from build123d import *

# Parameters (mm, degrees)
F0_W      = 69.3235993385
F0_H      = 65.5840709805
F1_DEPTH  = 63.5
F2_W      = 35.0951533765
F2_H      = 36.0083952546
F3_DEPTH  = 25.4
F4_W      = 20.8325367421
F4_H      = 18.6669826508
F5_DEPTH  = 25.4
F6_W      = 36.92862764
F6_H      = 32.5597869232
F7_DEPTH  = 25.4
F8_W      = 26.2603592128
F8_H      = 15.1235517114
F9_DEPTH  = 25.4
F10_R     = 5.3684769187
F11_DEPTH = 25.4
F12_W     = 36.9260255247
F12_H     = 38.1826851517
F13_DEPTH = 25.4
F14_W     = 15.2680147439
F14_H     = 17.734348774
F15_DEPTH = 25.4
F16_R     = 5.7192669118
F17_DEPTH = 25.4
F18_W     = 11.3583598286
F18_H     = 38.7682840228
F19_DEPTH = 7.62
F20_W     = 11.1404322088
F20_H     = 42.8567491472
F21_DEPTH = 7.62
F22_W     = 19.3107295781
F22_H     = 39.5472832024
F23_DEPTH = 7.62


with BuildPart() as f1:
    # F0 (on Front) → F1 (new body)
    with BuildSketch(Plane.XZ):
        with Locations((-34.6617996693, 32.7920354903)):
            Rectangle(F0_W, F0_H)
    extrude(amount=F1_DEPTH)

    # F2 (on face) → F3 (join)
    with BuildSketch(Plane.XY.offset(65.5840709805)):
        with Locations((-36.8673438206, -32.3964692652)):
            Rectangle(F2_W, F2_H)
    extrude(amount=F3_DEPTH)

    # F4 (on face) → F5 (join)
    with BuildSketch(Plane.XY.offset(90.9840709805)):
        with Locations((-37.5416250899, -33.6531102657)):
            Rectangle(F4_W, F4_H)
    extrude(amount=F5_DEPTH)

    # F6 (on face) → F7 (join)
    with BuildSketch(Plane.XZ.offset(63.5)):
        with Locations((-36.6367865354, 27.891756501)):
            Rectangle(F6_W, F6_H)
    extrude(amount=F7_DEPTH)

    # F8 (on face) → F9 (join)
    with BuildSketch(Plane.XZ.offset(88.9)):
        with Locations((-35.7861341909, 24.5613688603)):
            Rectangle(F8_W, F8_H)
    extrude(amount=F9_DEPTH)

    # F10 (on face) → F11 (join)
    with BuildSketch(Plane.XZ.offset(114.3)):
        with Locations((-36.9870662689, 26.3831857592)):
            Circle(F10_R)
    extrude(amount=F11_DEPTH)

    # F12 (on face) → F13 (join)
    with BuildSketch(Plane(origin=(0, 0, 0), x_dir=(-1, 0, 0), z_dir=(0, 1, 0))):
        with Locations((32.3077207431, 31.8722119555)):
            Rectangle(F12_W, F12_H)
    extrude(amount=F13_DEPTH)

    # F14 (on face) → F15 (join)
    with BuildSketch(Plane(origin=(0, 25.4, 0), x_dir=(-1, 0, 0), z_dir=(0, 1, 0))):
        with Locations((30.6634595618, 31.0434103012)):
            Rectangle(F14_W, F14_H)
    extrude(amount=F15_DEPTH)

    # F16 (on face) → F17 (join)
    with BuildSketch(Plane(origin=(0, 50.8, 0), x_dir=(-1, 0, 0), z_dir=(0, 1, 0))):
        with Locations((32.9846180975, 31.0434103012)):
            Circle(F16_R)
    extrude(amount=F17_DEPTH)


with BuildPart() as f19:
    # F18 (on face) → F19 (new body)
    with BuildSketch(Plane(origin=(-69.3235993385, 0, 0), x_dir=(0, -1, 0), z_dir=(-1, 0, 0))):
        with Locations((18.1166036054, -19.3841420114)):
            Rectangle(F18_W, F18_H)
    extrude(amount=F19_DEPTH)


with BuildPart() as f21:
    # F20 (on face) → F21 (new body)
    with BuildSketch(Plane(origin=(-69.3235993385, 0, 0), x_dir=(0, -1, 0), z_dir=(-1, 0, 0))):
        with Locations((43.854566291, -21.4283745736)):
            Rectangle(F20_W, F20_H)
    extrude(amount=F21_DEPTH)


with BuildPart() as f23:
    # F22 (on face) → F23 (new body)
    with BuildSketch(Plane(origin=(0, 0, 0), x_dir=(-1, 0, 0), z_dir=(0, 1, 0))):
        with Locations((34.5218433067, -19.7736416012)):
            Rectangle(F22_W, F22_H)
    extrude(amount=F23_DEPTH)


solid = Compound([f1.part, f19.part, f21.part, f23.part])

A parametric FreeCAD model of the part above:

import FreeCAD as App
import Part
import Sketcher
Q = App.Units.Quantity


def add_polygon(sketch, points):
    """Adds a closed chain of lines whose ends are joined by coincident constraints."""
    first, n = sketch.GeometryCount, len(points)
    for a, b in zip(points, points[1:] + points[:1]):
        sketch.addGeometry(Part.LineSegment(App.Vector(*a, 0), App.Vector(*b, 0)), False)
    for i in range(n):
        sketch.addConstraint(Sketcher.Constraint("Coincident", first + i, 2, first + (i + 1) % n, 1))

doc = App.newDocument("Part")
body = doc.addObject("PartDesign::Body", "Body")

sketch1 = doc.addObject("Sketcher::SketchObject", "Sketch")
body.addObject(sketch1)
sketch1.AttachmentSupport = (doc.XZ_Plane, [""])
sketch1.MapMode = "FlatFace"
add_polygon(sketch1, [(-69, 66), (-69, 0), (0, 0), (0, 66)])
sketch1.addConstraint(Sketcher.Constraint("Vertical", 0))
sketch1.addConstraint(Sketcher.Constraint("Horizontal", 1))
sketch1.addConstraint(Sketcher.Constraint("Vertical", 2))
sketch1.addConstraint(Sketcher.Constraint("Horizontal", 3))
sketch1.addConstraint(Sketcher.Constraint("Coincident", 1, 2, -1, 1))
sketch1.addConstraint(Sketcher.Constraint("DistanceX", 1, 1, 1, 2, Q("69.323599 mm")))
sketch1.addConstraint(Sketcher.Constraint("DistanceY", 0, 2, 0, 1, Q("65.584071 mm")))
pad1 = doc.addObject("PartDesign::Pad", "Pad")
body.addObject(pad1)
pad1.Profile = sketch1
pad1.Length = Q("2.5 in")

sketch2 = doc.addObject("Sketcher::SketchObject", "Sketch001")
body.addObject(sketch2)
sketch2.AttachmentSupport = (doc.XY_Plane, [""])
sketch2.MapMode = "FlatFace"
sketch2.AttachmentOffset = App.Placement(App.Vector(0, 0, 65.584071), App.Rotation())
add_polygon(sketch2, [(-54, -14), (-54, -50), (-19, -50), (-19, -14)])
sketch2.addConstraint(Sketcher.Constraint("Vertical", 0))
sketch2.addConstraint(Sketcher.Constraint("Horizontal", 1))
sketch2.addConstraint(Sketcher.Constraint("Vertical", 2))
sketch2.addConstraint(Sketcher.Constraint("Horizontal", 3))
sketch2.addConstraint(Sketcher.Constraint("DistanceX", 1, 1, 1, 2, Q("35.095153 mm")))
sketch2.addConstraint(Sketcher.Constraint("DistanceY", 0, 2, 0, 1, Q("36.008395 mm")))
sketch2.addConstraint(Sketcher.Constraint("DistanceX", 0, 2, -1, 1, Q("54.414921 mm")))
sketch2.addConstraint(Sketcher.Constraint("DistanceY", 2, 2, -1, 1, Q("14.392272 mm")))
pad2 = doc.addObject("PartDesign::Pad", "Pad001")
body.addObject(pad2)
pad2.Profile = sketch2
pad2.Length = Q("1 in")

sketch3 = doc.addObject("Sketcher::SketchObject", "Sketch002")
body.addObject(sketch3)
sketch3.AttachmentSupport = (doc.XY_Plane, [""])
sketch3.MapMode = "FlatFace"
sketch3.AttachmentOffset = App.Placement(App.Vector(0, 0, 90.984071), App.Rotation())
add_polygon(sketch3, [(-48, -24), (-48, -43), (-27, -43), (-27, -24)])
sketch3.addConstraint(Sketcher.Constraint("Vertical", 0))
sketch3.addConstraint(Sketcher.Constraint("Horizontal", 1))
sketch3.addConstraint(Sketcher.Constraint("Vertical", 2))
sketch3.addConstraint(Sketcher.Constraint("Horizontal", 3))
sketch3.addConstraint(Sketcher.Constraint("DistanceY", 0, 2, -1, 1, Q("42.986602 mm")))
sketch3.addConstraint(Sketcher.Constraint("DistanceX", 1, 1, 1, 2, Q("20.832537 mm")))
sketch3.addConstraint(Sketcher.Constraint("DistanceY", 0, 2, 0, 1, Q("18.666983 mm")))
sketch3.addConstraint(Sketcher.Constraint("DistanceX", 0, 2, -1, 1, Q("47.957893 mm")))
pad3 = doc.addObject("PartDesign::Pad", "Pad002")
body.addObject(pad3)
pad3.Profile = sketch3
pad3.Length = Q("1 in")

sketch4 = doc.addObject("Sketcher::SketchObject", "Sketch003")
body.addObject(sketch4)
sketch4.AttachmentSupport = (doc.XZ_Plane, [""])
sketch4.MapMode = "FlatFace"
sketch4.AttachmentOffset = App.Placement(App.Vector(0, 0, 2.5 * 25.4), App.Rotation())
add_polygon(sketch4, [(-55, 44), (-55, 12), (-18, 12), (-18, 44)])
sketch4.addConstraint(Sketcher.Constraint("Vertical", 0))
sketch4.addConstraint(Sketcher.Constraint("Horizontal", 1))
sketch4.addConstraint(Sketcher.Constraint("Vertical", 2))
sketch4.addConstraint(Sketcher.Constraint("Horizontal", 3))
sketch4.addConstraint(Sketcher.Constraint("DistanceX", 0, 2, -1, 1, Q("55.1011 mm")))
sketch4.addConstraint(Sketcher.Constraint("DistanceX", 1, 1, 1, 2, Q("36.928628 mm")))
sketch4.addConstraint(Sketcher.Constraint("DistanceY", 0, 2, 0, 1, Q("32.559787 mm")))
sketch4.addConstraint(Sketcher.Constraint("DistanceY", -1, 1, 2, 2, Q("44.17165 mm")))
pad4 = doc.addObject("PartDesign::Pad", "Pad003")
body.addObject(pad4)
pad4.Profile = sketch4
pad4.Length = Q("1 in")

sketch5 = doc.addObject("Sketcher::SketchObject", "Sketch004")
body.addObject(sketch5)
sketch5.AttachmentSupport = (doc.XZ_Plane, [""])
sketch5.MapMode = "FlatFace"
sketch5.AttachmentOffset = App.Placement(App.Vector(0, 0, 3.5 * 25.4), App.Rotation())
add_polygon(sketch5, [(-49, 32), (-49, 17), (-23, 17), (-23, 32)])
sketch5.addConstraint(Sketcher.Constraint("Vertical", 0))
sketch5.addConstraint(Sketcher.Constraint("Horizontal", 1))
sketch5.addConstraint(Sketcher.Constraint("Vertical", 2))
sketch5.addConstraint(Sketcher.Constraint("Horizontal", 3))
sketch5.addConstraint(Sketcher.Constraint("DistanceX", 1, 1, 1, 2, Q("26.260359 mm")))
sketch5.addConstraint(Sketcher.Constraint("DistanceY", 0, 2, 0, 1, Q("15.123552 mm")))
sketch5.addConstraint(Sketcher.Constraint("DistanceX", 0, 2, -1, 1, Q("48.916314 mm")))
sketch5.addConstraint(Sketcher.Constraint("DistanceY", -1, 1, 0, 2, Q("16.999593 mm")))
pad5 = doc.addObject("PartDesign::Pad", "Pad004")
body.addObject(pad5)
pad5.Profile = sketch5
pad5.Length = Q("1 in")

sketch6 = doc.addObject("Sketcher::SketchObject", "Sketch005")
body.addObject(sketch6)
sketch6.AttachmentSupport = (doc.XZ_Plane, [""])
sketch6.MapMode = "FlatFace"
sketch6.AttachmentOffset = App.Placement(App.Vector(0, 0, 4.5 * 25.4), App.Rotation())
sketch6.addGeometry(Part.Circle(App.Vector(-37, 26, 0), App.Vector(0, 0, 1), 5), False)
sketch6.addConstraint(Sketcher.Constraint("Diameter", 0, Q("10.736954 mm")))
sketch6.addConstraint(Sketcher.Constraint("DistanceX", 0, 3, -1, 1, Q("36.987066 mm")))
sketch6.addConstraint(Sketcher.Constraint("DistanceY", -1, 1, 0, 3, Q("26.383186 mm")))
pad6 = doc.addObject("PartDesign::Pad", "Pad005")
body.addObject(pad6)
pad6.Profile = sketch6
pad6.Length = Q("1 in")

sketch7 = doc.addObject("Sketcher::SketchObject", "Sketch006")
body.addObject(sketch7)
sketch7.AttachmentSupport = (doc.XZ_Plane, [""])
sketch7.MapMode = "FlatFace"
add_polygon(sketch7, [(-14, 51), (-14, 13), (-51, 13), (-51, 51)])
sketch7.addConstraint(Sketcher.Constraint("Vertical", 0))
sketch7.addConstraint(Sketcher.Constraint("Horizontal", 1))
sketch7.addConstraint(Sketcher.Constraint("Vertical", 2))
sketch7.addConstraint(Sketcher.Constraint("Horizontal", 3))
sketch7.addConstraint(Sketcher.Constraint("DistanceX", 1, 2, 1, 1, Q("36.926026 mm")))
sketch7.addConstraint(Sketcher.Constraint("DistanceY", 0, 2, 0, 1, Q("38.182685 mm")))
sketch7.addConstraint(Sketcher.Constraint("DistanceY", -1, 1, 0, 2, Q("12.780869 mm")))
sketch7.addConstraint(Sketcher.Constraint("DistanceX", 0, 2, -1, 1, Q("13.844708 mm")))
pad7 = doc.addObject("PartDesign::Pad", "Pad006")
body.addObject(pad7)
pad7.Profile = sketch7
pad7.Length = Q("1 in")
pad7.Reversed = True

sketch8 = doc.addObject("Sketcher::SketchObject", "Sketch007")
body.addObject(sketch8)
sketch8.AttachmentSupport = (doc.XZ_Plane, [""])
sketch8.MapMode = "FlatFace"
sketch8.AttachmentOffset = App.Placement(App.Vector(0, 0, -1 * 25.4), App.Rotation())
add_polygon(sketch8, [(-23, 40), (-23, 22), (-38, 22), (-38, 40)])
sketch8.addConstraint(Sketcher.Constraint("Vertical", 0))
sketch8.addConstraint(Sketcher.Constraint("Horizontal", 1))
sketch8.addConstraint(Sketcher.Constraint("Vertical", 2))
sketch8.addConstraint(Sketcher.Constraint("Horizontal", 3))
sketch8.addConstraint(Sketcher.Constraint("DistanceY", 0, 2, 0, 1, Q("17.734349 mm")))
sketch8.addConstraint(Sketcher.Constraint("DistanceX", 1, 2, 1, 1, Q("15.268015 mm")))
sketch8.addConstraint(Sketcher.Constraint("DistanceX", 0, 2, -1, 1, Q("23.029452 mm")))
sketch8.addConstraint(Sketcher.Constraint("DistanceY", -1, 1, 0, 2, Q("22.176236 mm")))
pad8 = doc.addObject("PartDesign::Pad", "Pad007")
body.addObject(pad8)
pad8.Profile = sketch8
pad8.Length = Q("1 in")
pad8.Reversed = True

sketch9 = doc.addObject("Sketcher::SketchObject", "Sketch008")
body.addObject(sketch9)
sketch9.AttachmentSupport = (doc.XZ_Plane, [""])
sketch9.MapMode = "FlatFace"
sketch9.AttachmentOffset = App.Placement(App.Vector(0, 0, -2 * 25.4), App.Rotation())
sketch9.addGeometry(Part.Circle(App.Vector(-33, 31, 0), App.Vector(0, 0, 1), 6), False)
sketch9.addConstraint(Sketcher.Constraint("Diameter", 0, Q("11.438534 mm")))
sketch9.addConstraint(Sketcher.Constraint("DistanceX", 0, 3, -1, 1, Q("32.984618 mm")))
sketch9.addConstraint(Sketcher.Constraint("DistanceY", -1, 1, 0, 3, Q("31.04341 mm")))
pad9 = doc.addObject("PartDesign::Pad", "Pad008")
body.addObject(pad9)
pad9.Profile = sketch9
pad9.Length = Q("1 in")
pad9.Reversed = True
body2 = doc.addObject("PartDesign::Body", "Body001")

sketch10 = doc.addObject("Sketcher::SketchObject", "Sketch009")
body2.addObject(sketch10)
sketch10.AttachmentSupport = (doc.getObject("YZ_Plane001"), [""])
sketch10.MapMode = "FlatFace"
sketch10.AttachmentOffset = App.Placement(App.Vector(0, 0, -69.323599), App.Rotation())
add_polygon(sketch10, [(-12, 0), (-12, -39), (-24, -39), (-24, 0)])
sketch10.addConstraint(Sketcher.Constraint("Vertical", 0))
sketch10.addConstraint(Sketcher.Constraint("Horizontal", 1))
sketch10.addConstraint(Sketcher.Constraint("Vertical", 2))
sketch10.addConstraint(Sketcher.Constraint("Horizontal", 3))
sketch10.addConstraint(Sketcher.Constraint("PointOnObject", 2, 2, -1))
sketch10.addConstraint(Sketcher.Constraint("DistanceX", 1, 2, 1, 1, Q("11.35836 mm")))
sketch10.addConstraint(Sketcher.Constraint("DistanceY", 0, 2, 0, 1, Q("38.768284 mm")))
sketch10.addConstraint(Sketcher.Constraint("DistanceX", 0, 2, -1, 1, Q("12.437424 mm")))
pad10 = doc.addObject("PartDesign::Pad", "Pad009")
body2.addObject(pad10)
pad10.Profile = sketch10
pad10.Length = Q("0.3 in")
pad10.Reversed = True
body3 = doc.addObject("PartDesign::Body", "Body002")

sketch11 = doc.addObject("Sketcher::SketchObject", "Sketch010")
body3.addObject(sketch11)
sketch11.AttachmentSupport = (doc.getObject("YZ_Plane002"), [""])
sketch11.MapMode = "FlatFace"
sketch11.AttachmentOffset = App.Placement(App.Vector(0, 0, -69.323599), App.Rotation())
add_polygon(sketch11, [(-38, 0), (-38, -43), (-49, -43), (-49, 0)])
sketch11.addConstraint(Sketcher.Constraint("Vertical", 0))
sketch11.addConstraint(Sketcher.Constraint("Horizontal", 1))
sketch11.addConstraint(Sketcher.Constraint("Vertical", 2))
sketch11.addConstraint(Sketcher.Constraint("Horizontal", 3))
sketch11.addConstraint(Sketcher.Constraint("PointOnObject", 2, 2, -1))
sketch11.addConstraint(Sketcher.Constraint("DistanceY", 0, 2, 0, 1, Q("42.856749 mm")))
sketch11.addConstraint(Sketcher.Constraint("DistanceX", 1, 2, 1, 1, Q("11.140432 mm")))
sketch11.addConstraint(Sketcher.Constraint("DistanceX", 0, 2, -1, 1, Q("38.28435 mm")))
pad11 = doc.addObject("PartDesign::Pad", "Pad010")
body3.addObject(pad11)
pad11.Profile = sketch11
pad11.Length = Q("0.3 in")
pad11.Reversed = True
body4 = doc.addObject("PartDesign::Body", "Body003")

sketch12 = doc.addObject("Sketcher::SketchObject", "Sketch011")
body4.addObject(sketch12)
sketch12.AttachmentSupport = (doc.getObject("XZ_Plane003"), [""])
sketch12.MapMode = "FlatFace"
add_polygon(sketch12, [(-25, 0), (-25, -40), (-44, -40), (-44, 0)])
sketch12.addConstraint(Sketcher.Constraint("Vertical", 0))
sketch12.addConstraint(Sketcher.Constraint("Horizontal", 1))
sketch12.addConstraint(Sketcher.Constraint("Vertical", 2))
sketch12.addConstraint(Sketcher.Constraint("Horizontal", 3))
sketch12.addConstraint(Sketcher.Constraint("PointOnObject", 2, 2, -1))
sketch12.addConstraint(Sketcher.Constraint("DistanceX", 1, 2, 1, 1, Q("19.31073 mm")))
sketch12.addConstraint(Sketcher.Constraint("DistanceY", 0, 2, 0, 1, Q("39.547283 mm")))
sketch12.addConstraint(Sketcher.Constraint("DistanceX", 0, 2, -1, 1, Q("24.866479 mm")))
pad12 = doc.addObject("PartDesign::Pad", "Pad011")
body4.addObject(pad12)
pad12.Profile = sketch12
pad12.Length = Q("0.3 in")
pad12.Reversed = True

doc.recompute()
